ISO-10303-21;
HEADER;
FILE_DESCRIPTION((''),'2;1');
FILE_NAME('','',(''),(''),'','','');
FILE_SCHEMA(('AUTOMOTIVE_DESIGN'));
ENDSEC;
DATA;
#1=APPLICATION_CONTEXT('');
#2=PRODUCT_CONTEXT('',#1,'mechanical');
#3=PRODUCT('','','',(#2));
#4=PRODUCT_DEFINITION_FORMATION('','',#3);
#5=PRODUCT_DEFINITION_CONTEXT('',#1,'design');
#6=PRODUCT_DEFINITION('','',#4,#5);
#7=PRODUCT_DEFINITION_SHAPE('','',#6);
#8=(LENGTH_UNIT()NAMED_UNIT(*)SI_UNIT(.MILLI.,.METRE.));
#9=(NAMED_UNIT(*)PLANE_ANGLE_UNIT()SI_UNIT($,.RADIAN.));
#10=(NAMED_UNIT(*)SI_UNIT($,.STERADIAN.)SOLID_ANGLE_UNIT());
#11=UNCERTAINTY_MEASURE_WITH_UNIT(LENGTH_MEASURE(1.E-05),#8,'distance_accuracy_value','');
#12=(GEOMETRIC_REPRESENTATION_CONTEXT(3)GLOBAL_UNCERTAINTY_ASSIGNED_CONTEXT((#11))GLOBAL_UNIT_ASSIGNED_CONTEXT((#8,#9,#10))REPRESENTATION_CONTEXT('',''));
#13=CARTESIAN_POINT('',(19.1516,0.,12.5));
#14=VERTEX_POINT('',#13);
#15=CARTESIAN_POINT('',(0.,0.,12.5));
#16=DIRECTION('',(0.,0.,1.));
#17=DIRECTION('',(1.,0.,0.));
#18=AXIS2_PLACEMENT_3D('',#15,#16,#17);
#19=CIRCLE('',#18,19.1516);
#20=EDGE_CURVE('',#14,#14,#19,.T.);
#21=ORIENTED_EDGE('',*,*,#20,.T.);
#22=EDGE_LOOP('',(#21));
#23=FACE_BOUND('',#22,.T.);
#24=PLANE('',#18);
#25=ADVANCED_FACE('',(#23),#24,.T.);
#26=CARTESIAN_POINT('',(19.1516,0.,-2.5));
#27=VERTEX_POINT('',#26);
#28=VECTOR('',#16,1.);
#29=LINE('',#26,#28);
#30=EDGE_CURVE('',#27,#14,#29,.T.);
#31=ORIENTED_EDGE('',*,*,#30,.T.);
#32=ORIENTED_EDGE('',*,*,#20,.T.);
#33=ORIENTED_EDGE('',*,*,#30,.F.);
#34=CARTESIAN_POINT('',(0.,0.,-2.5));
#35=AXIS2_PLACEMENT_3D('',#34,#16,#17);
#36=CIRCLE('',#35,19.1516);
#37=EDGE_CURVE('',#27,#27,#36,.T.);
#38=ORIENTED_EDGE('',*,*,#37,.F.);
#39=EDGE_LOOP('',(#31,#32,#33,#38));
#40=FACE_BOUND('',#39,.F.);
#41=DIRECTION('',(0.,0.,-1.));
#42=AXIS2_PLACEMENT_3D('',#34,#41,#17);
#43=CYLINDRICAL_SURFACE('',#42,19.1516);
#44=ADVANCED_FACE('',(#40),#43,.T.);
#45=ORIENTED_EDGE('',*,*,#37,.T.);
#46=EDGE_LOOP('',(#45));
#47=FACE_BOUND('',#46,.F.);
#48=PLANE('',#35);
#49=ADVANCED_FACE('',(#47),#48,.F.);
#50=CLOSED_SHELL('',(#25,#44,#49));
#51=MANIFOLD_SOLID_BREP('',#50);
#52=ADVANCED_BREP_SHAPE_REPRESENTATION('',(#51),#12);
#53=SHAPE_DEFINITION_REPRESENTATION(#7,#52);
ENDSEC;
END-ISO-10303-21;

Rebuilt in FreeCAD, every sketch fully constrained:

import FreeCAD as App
import Part
import Sketcher
from FreeCAD import Vector
Q = App.Units.Quantity

doc = App.newDocument("Part")
body = doc.addObject("PartDesign::Body", "Body")

# Sketch on XY plane
sketch1 = body.newObject("Sketcher::SketchObject", "Sketch")
sketch1.AttachmentSupport = (doc.getObject("XY_Plane"), [""])
sketch1.MapMode = "FlatFace"
sketch1.AttachmentOffset = App.Placement(Vector(0, 0, -2.5), App.Rotation())
sketch1.addGeometry(Part.Circle(Vector(0, 0, 0), Vector(0, 0, 1), 19), False)
sketch1.addConstraint([
    Sketcher.Constraint("Coincident", 0, 3, -1, 1),
    Sketcher.Constraint("Diameter", 0, Q("38.3032 mm")),
])
pad1 = body.newObject("PartDesign::Pad", "Pad")
pad1.Profile = sketch1
pad1.Length = 15

doc.recompute()
